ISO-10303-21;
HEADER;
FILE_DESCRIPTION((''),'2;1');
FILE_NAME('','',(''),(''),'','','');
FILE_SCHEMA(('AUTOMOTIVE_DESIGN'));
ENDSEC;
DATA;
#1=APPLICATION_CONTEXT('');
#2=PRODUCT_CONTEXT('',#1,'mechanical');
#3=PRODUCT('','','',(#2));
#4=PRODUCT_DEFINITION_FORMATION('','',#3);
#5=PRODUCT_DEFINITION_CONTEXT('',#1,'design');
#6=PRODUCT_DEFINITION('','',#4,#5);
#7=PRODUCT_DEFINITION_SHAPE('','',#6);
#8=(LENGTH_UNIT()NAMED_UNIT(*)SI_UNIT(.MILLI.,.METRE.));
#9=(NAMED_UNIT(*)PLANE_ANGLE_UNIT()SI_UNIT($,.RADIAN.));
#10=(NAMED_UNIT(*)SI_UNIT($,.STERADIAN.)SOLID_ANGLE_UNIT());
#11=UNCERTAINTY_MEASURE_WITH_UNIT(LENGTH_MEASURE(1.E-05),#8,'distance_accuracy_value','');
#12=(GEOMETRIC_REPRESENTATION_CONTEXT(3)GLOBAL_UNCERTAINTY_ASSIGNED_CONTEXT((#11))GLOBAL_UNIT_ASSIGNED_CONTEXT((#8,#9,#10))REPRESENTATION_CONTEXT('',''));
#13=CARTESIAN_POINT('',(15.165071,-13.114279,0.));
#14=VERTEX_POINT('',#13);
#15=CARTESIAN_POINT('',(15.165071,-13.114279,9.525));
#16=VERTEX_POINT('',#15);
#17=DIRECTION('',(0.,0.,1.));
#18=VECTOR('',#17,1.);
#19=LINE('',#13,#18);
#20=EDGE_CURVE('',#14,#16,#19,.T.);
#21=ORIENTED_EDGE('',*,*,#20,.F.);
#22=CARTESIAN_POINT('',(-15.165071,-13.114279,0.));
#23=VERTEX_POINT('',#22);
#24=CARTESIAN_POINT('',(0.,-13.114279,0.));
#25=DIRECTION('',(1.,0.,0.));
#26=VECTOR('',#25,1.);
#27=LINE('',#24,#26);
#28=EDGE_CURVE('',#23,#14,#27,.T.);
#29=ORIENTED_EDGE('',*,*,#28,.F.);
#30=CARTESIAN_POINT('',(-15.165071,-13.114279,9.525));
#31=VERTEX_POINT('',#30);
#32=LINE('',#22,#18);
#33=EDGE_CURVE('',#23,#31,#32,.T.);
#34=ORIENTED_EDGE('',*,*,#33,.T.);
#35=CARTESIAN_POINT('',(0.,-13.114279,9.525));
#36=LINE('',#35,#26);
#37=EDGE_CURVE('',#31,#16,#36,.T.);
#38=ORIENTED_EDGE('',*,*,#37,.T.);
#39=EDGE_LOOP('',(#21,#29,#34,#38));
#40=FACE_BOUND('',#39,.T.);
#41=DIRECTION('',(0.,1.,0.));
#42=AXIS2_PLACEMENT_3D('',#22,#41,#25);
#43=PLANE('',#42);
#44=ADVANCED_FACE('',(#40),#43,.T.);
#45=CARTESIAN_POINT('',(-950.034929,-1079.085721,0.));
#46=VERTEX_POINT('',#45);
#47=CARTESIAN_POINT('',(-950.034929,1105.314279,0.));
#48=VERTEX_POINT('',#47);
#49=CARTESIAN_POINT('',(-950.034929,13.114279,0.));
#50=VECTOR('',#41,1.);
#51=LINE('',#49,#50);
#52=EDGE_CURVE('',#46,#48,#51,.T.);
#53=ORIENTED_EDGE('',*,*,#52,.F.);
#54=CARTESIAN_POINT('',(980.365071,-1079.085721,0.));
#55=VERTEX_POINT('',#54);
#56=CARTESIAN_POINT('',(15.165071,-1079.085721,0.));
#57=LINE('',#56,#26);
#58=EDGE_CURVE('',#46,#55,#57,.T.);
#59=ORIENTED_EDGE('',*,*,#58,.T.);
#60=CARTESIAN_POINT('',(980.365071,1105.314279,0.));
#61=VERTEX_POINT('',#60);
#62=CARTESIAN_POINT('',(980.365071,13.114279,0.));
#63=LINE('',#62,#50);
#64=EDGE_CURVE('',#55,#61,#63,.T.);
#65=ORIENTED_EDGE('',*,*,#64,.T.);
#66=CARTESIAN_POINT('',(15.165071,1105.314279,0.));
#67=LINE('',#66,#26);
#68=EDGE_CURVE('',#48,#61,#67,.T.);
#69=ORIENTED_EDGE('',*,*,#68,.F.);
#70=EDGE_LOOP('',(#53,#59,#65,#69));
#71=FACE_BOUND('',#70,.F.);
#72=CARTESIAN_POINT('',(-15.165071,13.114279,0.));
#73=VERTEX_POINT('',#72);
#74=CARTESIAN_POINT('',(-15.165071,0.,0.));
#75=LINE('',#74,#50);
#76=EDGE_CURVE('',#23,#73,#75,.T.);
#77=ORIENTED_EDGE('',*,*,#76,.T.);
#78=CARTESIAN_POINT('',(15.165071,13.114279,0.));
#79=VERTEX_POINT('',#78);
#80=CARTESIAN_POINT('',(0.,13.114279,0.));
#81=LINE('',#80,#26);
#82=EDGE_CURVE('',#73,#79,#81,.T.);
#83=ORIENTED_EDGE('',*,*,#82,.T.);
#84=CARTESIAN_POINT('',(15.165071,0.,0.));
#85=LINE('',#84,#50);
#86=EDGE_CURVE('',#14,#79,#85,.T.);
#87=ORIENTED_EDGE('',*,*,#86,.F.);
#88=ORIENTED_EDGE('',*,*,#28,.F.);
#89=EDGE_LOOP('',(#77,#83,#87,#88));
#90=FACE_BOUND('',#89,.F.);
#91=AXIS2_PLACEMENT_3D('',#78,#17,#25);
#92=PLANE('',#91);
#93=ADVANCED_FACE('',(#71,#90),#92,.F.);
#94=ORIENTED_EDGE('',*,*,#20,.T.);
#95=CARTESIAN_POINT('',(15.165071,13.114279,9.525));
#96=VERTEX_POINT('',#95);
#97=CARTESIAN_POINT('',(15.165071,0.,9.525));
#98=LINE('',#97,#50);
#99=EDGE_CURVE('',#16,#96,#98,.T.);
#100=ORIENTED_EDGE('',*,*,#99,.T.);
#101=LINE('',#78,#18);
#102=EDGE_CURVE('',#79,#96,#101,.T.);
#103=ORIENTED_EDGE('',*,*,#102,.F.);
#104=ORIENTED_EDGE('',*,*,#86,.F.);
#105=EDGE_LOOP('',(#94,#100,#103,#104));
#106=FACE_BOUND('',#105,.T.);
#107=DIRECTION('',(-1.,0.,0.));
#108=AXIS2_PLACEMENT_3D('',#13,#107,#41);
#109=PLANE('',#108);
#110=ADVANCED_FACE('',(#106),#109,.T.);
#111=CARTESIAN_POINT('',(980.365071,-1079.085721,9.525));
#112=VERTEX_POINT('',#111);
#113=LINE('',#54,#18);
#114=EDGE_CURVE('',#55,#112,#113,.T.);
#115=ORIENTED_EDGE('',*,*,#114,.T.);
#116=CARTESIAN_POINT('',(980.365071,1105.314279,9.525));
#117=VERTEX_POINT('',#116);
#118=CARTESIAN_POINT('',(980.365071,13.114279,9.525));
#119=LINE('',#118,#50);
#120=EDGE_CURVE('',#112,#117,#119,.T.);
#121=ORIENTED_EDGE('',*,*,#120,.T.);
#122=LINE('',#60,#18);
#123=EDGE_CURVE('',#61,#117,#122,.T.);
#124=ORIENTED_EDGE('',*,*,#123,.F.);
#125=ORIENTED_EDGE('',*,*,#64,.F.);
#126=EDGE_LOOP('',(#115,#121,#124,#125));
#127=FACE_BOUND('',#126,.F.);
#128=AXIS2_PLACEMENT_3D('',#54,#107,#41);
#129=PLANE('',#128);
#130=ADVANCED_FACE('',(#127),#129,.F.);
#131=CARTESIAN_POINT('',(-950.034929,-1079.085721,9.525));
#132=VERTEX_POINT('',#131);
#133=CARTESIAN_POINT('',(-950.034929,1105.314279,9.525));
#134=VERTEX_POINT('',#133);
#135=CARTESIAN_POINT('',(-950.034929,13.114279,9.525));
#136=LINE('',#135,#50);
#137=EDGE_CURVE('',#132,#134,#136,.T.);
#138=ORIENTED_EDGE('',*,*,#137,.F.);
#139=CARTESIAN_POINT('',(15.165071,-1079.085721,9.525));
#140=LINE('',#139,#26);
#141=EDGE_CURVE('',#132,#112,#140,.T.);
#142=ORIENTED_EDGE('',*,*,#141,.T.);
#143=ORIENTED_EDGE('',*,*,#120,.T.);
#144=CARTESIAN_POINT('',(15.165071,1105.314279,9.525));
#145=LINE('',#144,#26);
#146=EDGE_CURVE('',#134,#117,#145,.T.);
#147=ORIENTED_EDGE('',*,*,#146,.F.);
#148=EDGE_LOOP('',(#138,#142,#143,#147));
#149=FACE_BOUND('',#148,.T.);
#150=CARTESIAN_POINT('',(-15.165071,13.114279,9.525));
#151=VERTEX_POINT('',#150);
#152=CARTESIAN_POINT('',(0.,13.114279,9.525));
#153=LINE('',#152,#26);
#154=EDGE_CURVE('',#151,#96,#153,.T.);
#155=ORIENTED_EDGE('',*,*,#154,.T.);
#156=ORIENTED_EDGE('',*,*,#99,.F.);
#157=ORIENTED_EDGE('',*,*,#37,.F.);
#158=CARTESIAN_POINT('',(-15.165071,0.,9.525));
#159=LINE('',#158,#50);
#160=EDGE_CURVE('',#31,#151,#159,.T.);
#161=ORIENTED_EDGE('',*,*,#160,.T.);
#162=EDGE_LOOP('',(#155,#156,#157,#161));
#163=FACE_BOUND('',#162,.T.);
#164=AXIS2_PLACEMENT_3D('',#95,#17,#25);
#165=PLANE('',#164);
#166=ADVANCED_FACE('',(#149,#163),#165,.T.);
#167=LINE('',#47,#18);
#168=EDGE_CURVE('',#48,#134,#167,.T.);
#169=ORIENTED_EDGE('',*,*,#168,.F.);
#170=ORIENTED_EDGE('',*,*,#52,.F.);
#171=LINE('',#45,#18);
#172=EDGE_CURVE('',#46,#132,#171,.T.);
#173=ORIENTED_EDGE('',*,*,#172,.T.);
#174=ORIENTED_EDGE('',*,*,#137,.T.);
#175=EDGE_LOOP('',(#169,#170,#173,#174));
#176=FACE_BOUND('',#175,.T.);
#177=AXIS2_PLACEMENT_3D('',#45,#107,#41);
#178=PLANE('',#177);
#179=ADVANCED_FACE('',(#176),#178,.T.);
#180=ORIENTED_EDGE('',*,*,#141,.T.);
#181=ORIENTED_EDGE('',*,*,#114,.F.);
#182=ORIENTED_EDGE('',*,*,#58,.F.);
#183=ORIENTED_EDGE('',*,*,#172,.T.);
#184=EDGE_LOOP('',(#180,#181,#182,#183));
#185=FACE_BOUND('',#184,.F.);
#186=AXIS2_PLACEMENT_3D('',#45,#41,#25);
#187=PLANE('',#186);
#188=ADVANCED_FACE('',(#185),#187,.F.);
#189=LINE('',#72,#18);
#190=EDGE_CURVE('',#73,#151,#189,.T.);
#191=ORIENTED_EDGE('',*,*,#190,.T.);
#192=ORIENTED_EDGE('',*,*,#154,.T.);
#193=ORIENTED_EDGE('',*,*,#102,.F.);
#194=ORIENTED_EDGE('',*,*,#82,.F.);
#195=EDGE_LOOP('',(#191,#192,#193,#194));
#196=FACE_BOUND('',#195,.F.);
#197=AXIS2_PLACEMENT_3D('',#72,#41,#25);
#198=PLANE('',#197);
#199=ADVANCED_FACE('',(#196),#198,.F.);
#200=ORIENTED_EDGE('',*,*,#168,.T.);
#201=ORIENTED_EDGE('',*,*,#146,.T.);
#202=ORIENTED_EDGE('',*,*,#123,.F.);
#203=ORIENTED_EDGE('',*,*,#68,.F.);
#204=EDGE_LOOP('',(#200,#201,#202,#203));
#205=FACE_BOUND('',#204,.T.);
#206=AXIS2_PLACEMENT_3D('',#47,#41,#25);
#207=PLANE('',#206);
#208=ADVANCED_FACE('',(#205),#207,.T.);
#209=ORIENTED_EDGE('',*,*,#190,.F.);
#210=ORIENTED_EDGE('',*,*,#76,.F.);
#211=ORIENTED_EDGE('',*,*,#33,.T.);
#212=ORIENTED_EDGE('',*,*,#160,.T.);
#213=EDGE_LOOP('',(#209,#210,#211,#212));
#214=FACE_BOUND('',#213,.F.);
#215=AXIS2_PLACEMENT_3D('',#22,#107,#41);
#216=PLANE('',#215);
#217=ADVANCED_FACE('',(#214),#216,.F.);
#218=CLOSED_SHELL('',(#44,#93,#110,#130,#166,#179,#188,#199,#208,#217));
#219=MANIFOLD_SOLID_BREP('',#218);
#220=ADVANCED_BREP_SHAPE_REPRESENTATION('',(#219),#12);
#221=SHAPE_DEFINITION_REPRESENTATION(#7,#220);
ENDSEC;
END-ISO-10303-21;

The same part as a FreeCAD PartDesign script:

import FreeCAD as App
import Part
import Sketcher
from FreeCAD import Vector
Q = App.Units.Quantity

doc = App.newDocument("Part")
body = doc.addObject("PartDesign::Body", "Body")

# Sketch on XY plane
sketch1 = body.newObject("Sketcher::SketchObject", "Sketch")
sketch1.AttachmentSupport = (doc.getObject("XY_Plane"), [""])
sketch1.MapMode = "FlatFace"
sketch1.addGeometry(Part.LineSegment(Vector(-950, 1105, 0), Vector(-950, -1079, 0)), False)
sketch1.addGeometry(Part.LineSegment(Vector(-950, -1079, 0), Vector(980, -1079, 0)), False)
sketch1.addGeometry(Part.LineSegment(Vector(980, -1079, 0), Vector(980, 1105, 0)), False)
sketch1.addGeometry(Part.LineSegment(Vector(980, 1105, 0), Vector(-950, 1105, 0)), False)
sketch1.addGeometry(Part.LineSegment(Vector(15, -13, 0), Vector(-15, -13, 0)), False)
sketch1.addGeometry(Part.LineSegment(Vector(-15, -13, 0), Vector(-15, 13, 0)), False)
sketch1.addGeometry(Part.LineSegment(Vector(-15, 13, 0), Vector(15, 13, 0)), False)
sketch1.addGeometry(Part.LineSegment(Vector(15, 13, 0), Vector(15, -13, 0)), False)
sketch1.addConstraint(Sketcher.Constraint("Coincident", 0, 2, 1, 1))
sketch1.addConstraint(Sketcher.Constraint("Coincident", 1, 2, 2, 1))
sketch1.addConstraint(Sketcher.Constraint("Coincident", 2, 2, 3, 1))
sketch1.addConstraint(Sketcher.Constraint("Coincident", 3, 2, 0, 1))
sketch1.addConstraint(Sketcher.Constraint("Coincident", 4, 2, 5, 1))
sketch1.addConstraint(Sketcher.Constraint("Coincident", 5, 2, 6, 1))
sketch1.addConstraint(Sketcher.Constraint("Coincident", 6, 2, 7, 1))
sketch1.addConstraint(Sketcher.Constraint("Coincident", 7, 2, 4, 1))
sketch1.addConstraint(Sketcher.Constraint("Vertical", 0))
sketch1.addConstraint(Sketcher.Constraint("Horizontal", 1))
sketch1.addConstraint(Sketcher.Constraint("Vertical", 2))
sketch1.addConstraint(Sketcher.Constraint("Horizontal", 3))
sketch1.addConstraint(Sketcher.Constraint("Horizontal", 4))
sketch1.addConstraint(Sketcher.Constraint("Vertical", 5))
sketch1.addConstraint(Sketcher.Constraint("Horizontal", 6))
sketch1.addConstraint(Sketcher.Constraint("Vertical", 7))
sketch1.addConstraint(Sketcher.Constraint("Symmetric", 4, 2, 6, 2, -1, 1))
sketch1.addConstraint(Sketcher.Constraint("DistanceX", 1, 1, 1, 2, Q("76 in")))
sketch1.addConstraint(Sketcher.Constraint("DistanceY", 0, 2, 0, 1, Q("86 in")))
sketch1.addConstraint(Sketcher.Constraint("DistanceY", 0, 2, 5, 2, Q("43 in")))
sketch1.addConstraint(Sketcher.Constraint("DistanceX", 6, 2, 1, 2, Q("38 in")))
sketch1.addConstraint(Sketcher.Constraint("DistanceX", 4, 2, 4, 1, Q("1.1941001 in")))
sketch1.addConstraint(Sketcher.Constraint("DistanceY", 5, 1, 5, 2, 26.228558))
pad1 = body.newObject("PartDesign::Pad", "Pad")
pad1.Profile = sketch1
pad1.Length = Q("0.375 in")

doc.recompute()
